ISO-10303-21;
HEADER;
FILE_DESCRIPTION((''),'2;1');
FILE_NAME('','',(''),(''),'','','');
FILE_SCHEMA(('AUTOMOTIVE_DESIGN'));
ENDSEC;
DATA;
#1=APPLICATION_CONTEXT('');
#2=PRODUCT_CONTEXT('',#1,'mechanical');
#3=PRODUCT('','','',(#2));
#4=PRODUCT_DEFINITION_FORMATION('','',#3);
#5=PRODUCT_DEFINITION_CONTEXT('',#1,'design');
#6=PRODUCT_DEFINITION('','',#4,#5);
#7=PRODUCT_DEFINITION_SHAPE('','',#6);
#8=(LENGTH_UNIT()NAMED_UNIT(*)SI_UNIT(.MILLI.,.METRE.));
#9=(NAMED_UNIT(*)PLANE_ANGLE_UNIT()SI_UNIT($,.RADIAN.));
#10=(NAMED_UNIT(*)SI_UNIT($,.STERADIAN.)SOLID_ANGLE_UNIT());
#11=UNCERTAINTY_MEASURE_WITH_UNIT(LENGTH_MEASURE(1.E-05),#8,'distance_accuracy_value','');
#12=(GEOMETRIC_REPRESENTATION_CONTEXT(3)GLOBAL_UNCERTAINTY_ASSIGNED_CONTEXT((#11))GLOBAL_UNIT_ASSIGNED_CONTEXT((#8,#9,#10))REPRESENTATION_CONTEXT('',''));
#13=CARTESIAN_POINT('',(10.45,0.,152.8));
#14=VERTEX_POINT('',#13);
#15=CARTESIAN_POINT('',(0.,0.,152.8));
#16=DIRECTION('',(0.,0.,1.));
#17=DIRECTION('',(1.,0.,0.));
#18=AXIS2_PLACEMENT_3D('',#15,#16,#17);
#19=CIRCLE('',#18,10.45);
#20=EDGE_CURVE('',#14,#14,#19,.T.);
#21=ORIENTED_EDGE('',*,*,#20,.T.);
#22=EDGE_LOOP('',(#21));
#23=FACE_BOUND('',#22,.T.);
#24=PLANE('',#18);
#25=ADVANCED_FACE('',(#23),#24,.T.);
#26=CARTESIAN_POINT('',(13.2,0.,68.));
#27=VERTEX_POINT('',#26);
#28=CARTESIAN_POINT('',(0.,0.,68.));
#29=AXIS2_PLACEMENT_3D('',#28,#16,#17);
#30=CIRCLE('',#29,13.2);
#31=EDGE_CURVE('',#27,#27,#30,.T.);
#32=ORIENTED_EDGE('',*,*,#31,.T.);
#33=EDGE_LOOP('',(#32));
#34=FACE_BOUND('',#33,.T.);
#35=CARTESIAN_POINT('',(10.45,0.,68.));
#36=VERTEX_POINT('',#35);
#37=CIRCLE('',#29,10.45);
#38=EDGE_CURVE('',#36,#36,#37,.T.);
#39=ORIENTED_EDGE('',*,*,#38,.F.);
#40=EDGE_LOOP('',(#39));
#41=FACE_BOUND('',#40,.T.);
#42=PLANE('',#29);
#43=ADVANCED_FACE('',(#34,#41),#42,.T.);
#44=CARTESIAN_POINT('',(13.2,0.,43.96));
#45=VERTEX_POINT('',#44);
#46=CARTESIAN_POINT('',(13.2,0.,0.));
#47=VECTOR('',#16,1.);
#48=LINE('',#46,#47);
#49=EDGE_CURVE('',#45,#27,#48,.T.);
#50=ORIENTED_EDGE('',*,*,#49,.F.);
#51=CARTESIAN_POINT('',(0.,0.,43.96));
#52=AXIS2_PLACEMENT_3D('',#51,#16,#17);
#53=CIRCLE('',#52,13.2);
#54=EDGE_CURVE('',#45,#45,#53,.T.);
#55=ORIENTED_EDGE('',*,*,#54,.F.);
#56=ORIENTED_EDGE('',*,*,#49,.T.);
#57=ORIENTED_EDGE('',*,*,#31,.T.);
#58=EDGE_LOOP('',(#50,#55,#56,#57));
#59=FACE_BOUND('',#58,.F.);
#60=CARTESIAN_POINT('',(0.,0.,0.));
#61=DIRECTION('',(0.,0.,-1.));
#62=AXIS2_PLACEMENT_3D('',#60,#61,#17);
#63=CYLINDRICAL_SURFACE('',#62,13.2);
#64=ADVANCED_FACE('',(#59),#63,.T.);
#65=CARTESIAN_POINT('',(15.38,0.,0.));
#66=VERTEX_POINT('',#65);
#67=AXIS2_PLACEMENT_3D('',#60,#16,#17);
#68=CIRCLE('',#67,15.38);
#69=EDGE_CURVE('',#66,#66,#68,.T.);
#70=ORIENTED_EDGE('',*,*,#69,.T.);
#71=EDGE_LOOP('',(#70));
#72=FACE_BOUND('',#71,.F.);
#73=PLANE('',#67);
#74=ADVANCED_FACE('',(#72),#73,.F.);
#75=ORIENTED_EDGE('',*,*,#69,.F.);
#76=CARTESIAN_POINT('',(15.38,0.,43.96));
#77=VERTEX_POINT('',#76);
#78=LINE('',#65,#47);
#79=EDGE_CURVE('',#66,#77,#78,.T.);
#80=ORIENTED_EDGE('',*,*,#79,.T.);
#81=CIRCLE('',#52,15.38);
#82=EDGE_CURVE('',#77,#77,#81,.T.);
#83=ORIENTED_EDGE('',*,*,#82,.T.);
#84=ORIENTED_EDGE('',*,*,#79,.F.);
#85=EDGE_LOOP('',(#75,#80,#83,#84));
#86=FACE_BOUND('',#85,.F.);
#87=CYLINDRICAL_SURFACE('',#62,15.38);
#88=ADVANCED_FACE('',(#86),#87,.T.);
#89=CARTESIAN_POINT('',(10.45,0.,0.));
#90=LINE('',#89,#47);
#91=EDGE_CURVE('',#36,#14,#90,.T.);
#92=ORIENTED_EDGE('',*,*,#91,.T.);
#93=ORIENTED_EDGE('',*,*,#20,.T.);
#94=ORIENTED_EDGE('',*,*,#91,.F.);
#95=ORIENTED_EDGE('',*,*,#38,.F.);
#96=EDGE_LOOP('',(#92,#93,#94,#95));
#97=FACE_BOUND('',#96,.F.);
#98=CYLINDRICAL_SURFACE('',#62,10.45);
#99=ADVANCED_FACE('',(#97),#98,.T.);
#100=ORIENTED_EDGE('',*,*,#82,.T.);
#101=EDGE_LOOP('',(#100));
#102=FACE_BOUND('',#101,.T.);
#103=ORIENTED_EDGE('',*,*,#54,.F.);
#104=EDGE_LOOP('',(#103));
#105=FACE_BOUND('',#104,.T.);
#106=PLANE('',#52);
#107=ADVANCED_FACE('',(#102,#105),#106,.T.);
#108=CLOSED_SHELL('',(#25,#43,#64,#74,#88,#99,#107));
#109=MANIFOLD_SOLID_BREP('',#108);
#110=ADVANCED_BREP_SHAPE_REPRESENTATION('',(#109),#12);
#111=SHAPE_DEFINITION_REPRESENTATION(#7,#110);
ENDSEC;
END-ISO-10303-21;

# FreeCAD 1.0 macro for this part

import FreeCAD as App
import Part
import Sketcher
from FreeCAD import Vector
Q = App.Units.Quantity

doc = App.newDocument("Part")
body = doc.addObject("PartDesign::Body", "Body")

# Sketch on XY plane
sketch1 = body.newObject("Sketcher::SketchObject", "Sketch")
sketch1.AttachmentSupport = (doc.getObject("XY_Plane"), [""])
sketch1.MapMode = "FlatFace"
sketch1.addGeometry([
    Part.Circle(Vector(0, 0, 0), Vector(0, 0, 1), 15.38),
    Part.Circle(Vector(0, 0, 0), Vector(0, 0, 1), 13.2),
], False)
sketch1.addConstraint([
    Sketcher.Constraint("Coincident", 0, 3, -1, 1),
    Sketcher.Constraint("Coincident", 1, 3, -1, 1),
    Sketcher.Constraint("Diameter", 1, Q("26.4 mm")),
    Sketcher.Constraint("Diameter", 0, Q("30.76 mm")),
])
pad1 = body.newObject("PartDesign::Pad", "Pad")
pad1.Profile = sketch1
pad1.Length = 43.96

# Sketch on XY plane
sketch2 = body.newObject("Sketcher::SketchObject", "Sketch001")
sketch2.AttachmentSupport = (doc.getObject("XY_Plane"), [""])
sketch2.MapMode = "FlatFace"
sketch2.addGeometry([
    Part.Circle(Vector(0, 0, 0), Vector(0, 0, 1), 13.2),
    Part.Circle(Vector(0, 0, 0), Vector(0, 0, 1), 10.45),
], False)
sketch2.addConstraint([
    Sketcher.Constraint("Coincident", 0, 3, -1, 1),
    Sketcher.Constraint("Coincident", 1, 3, -1, 1),
    Sketcher.Constraint("Diameter", 0, Q("26.4 mm")),
    Sketcher.Constraint("Diameter", 1, Q("20.9 mm")),
])
pad2 = body.newObject("PartDesign::Pad", "Pad001")
pad2.Profile = sketch2
pad2.Length = 68

# Sketch on XY plane
sketch3 = body.newObject("Sketcher::SketchObject", "Sketch002")
sketch3.AttachmentSupport = (doc.getObject("XY_Plane"), [""])
sketch3.MapMode = "FlatFace"
sketch3.addGeometry(Part.Circle(Vector(0, 0, 0), Vector(0, 0, 1), 10.45), False)
sketch3.addConstraint([
    Sketcher.Constraint("Coincident", 0, 3, -1, 1),
    Sketcher.Constraint("Diameter", 0, Q("20.9 mm")),
])
pad3 = body.newObject("PartDesign::Pad", "Pad002")
pad3.Profile = sketch3
pad3.Length = 152.8

doc.recompute()
